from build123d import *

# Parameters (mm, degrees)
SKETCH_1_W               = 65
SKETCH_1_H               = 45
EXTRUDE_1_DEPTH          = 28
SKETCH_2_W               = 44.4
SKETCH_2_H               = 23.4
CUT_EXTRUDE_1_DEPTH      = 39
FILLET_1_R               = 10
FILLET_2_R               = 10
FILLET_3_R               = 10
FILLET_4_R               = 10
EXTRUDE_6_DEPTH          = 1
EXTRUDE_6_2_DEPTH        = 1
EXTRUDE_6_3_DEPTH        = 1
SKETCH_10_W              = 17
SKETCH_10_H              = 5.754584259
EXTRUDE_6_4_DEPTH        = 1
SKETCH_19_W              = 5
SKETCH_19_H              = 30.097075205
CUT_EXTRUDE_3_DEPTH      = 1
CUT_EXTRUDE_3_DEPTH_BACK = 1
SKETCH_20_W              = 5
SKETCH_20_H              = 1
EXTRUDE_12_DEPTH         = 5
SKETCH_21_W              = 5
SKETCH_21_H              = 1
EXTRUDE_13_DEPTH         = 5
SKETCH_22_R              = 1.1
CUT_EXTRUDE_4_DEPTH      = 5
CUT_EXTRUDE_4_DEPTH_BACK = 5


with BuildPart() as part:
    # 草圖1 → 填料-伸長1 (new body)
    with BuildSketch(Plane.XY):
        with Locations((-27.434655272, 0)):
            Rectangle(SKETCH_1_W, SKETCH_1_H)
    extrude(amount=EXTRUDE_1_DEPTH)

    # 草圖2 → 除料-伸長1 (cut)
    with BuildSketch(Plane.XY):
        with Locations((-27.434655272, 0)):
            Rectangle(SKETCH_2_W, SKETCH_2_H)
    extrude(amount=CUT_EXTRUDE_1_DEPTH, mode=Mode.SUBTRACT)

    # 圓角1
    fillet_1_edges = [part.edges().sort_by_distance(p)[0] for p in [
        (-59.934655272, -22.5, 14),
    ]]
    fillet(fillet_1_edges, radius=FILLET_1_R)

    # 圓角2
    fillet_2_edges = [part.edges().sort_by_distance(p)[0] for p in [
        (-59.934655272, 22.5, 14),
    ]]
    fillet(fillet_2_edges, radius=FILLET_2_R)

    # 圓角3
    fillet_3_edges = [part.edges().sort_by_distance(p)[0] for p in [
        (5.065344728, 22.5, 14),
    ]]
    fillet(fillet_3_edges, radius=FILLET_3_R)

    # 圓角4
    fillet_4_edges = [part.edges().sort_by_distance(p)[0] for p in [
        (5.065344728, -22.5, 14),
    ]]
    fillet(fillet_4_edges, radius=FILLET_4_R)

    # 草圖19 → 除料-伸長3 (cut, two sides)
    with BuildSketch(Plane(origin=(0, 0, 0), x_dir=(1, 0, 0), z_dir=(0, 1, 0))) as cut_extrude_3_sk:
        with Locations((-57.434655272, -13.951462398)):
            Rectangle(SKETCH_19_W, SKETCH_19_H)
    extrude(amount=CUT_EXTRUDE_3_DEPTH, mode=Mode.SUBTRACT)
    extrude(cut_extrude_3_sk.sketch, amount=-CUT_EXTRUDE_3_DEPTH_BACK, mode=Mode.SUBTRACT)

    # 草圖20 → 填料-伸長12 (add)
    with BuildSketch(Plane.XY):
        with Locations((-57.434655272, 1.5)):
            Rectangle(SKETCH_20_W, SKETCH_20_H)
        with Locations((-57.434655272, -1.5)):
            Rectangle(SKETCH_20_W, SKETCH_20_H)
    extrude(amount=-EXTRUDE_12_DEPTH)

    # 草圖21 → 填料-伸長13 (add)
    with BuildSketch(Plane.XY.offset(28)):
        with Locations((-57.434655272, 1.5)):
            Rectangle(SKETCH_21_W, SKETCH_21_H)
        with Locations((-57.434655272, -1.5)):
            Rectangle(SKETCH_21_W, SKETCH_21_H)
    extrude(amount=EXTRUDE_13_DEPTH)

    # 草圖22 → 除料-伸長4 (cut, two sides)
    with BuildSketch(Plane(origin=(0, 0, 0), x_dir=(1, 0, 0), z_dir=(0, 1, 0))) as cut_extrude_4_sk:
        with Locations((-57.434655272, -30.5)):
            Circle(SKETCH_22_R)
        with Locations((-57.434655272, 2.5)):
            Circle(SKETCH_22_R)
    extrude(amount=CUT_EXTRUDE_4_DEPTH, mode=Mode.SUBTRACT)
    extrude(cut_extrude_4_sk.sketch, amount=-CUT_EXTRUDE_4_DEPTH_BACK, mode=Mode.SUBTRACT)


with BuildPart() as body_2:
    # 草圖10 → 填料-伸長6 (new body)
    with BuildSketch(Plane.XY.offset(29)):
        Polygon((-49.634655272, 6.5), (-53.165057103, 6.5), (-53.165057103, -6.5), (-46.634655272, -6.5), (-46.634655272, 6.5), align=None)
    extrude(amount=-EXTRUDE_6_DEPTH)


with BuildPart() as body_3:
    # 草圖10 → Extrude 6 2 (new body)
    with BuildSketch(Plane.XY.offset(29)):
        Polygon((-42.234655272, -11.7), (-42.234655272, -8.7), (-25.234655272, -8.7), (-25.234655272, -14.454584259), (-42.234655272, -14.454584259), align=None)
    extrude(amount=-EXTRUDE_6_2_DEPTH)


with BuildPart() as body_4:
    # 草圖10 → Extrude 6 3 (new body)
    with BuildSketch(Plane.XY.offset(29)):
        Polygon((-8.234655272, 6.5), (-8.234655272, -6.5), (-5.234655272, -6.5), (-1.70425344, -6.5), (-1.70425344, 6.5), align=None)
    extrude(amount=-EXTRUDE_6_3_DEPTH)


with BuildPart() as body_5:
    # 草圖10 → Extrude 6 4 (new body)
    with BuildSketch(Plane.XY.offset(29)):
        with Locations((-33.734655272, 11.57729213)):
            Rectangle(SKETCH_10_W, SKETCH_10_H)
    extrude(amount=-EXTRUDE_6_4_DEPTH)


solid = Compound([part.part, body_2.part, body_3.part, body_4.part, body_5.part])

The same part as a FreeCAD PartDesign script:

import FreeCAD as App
import Part
import Sketcher


def edges_at(feature, points):
    """Names of the edges that pass closest to the given points."""
    edges = feature.Shape.Edges
    near = lambda p: min(range(len(edges)), key=lambda i: edges[i].distToShape(Part.Vertex(*p))[0])
    return sorted({f"Edge{near(p) + 1}" for p in points})

doc = App.newDocument("Part")
body = doc.addObject("PartDesign::Body", "Body")

sketch1 = doc.addObject("Sketcher::SketchObject", "Sketch")
body.addObject(sketch1)
sketch1.AttachmentSupport = (doc.XY_Plane, [""])
sketch1.MapMode = "FlatFace"
sketch1.addGeometry(Part.LineSegment(App.Vector(-59.934655, 22.5, 0), App.Vector(-59.934655, -22.5, 0)), False)
sketch1.addGeometry(Part.LineSegment(App.Vector(-59.934655, -22.5, 0), App.Vector(5.065345, -22.5, 0)), False)
sketch1.addGeometry(Part.LineSegment(App.Vector(5.065345, -22.5, 0), App.Vector(5.065345, 22.5, 0)), False)
sketch1.addGeometry(Part.LineSegment(App.Vector(5.065345, 22.5, 0), App.Vector(-59.934655, 22.5, 0)), False)
sketch1.addConstraint(Sketcher.Constraint("Coincident", 0, 2, 1, 1))
sketch1.addConstraint(Sketcher.Constraint("Coincident", 1, 2, 2, 1))
sketch1.addConstraint(Sketcher.Constraint("Coincident", 2, 2, 3, 1))
sketch1.addConstraint(Sketcher.Constraint("Coincident", 3, 2, 0, 1))
sketch1.addConstraint(Sketcher.Constraint("Vertical", 0))
sketch1.addConstraint(Sketcher.Constraint("Horizontal", 1))
sketch1.addConstraint(Sketcher.Constraint("Vertical", 2))
sketch1.addConstraint(Sketcher.Constraint("Horizontal", 3))
sketch1.addConstraint(Sketcher.Constraint("DistanceX", 1, 1, 1, 2, 65.0))
sketch1.addConstraint(Sketcher.Constraint("DistanceY", 0, 2, 0, 1, 45.0))
sketch1.addConstraint(Sketcher.Constraint("DistanceY", 0, 2, -1, 1, 22.5))
sketch1.addConstraint(Sketcher.Constraint("DistanceX", 0, 2, -1, 1, 59.934655))
pad1 = doc.addObject("PartDesign::Pad", "Pad")
body.addObject(pad1)
pad1.Profile = sketch1
pad1.Length = 28

sketch2 = doc.addObject("Sketcher::SketchObject", "Sketch001")
body.addObject(sketch2)
sketch2.AttachmentSupport = (doc.XY_Plane, [""])
sketch2.MapMode = "FlatFace"
sketch2.addGeometry(Part.LineSegment(App.Vector(-49.634655, 11.7, 0), App.Vector(-49.634655, -11.7, 0)), False)
sketch2.addGeometry(Part.LineSegment(App.Vector(-49.634655, -11.7, 0), App.Vector(-5.234655, -11.7, 0)), False)
sketch2.addGeometry(Part.LineSegment(App.Vector(-5.234655, -11.7, 0), App.Vector(-5.234655, 11.7, 0)), False)
sketch2.addGeometry(Part.LineSegment(App.Vector(-5.234655, 11.7, 0), App.Vector(-49.634655, 11.7, 0)), False)
sketch2.addConstraint(Sketcher.Constraint("Coincident", 0, 2, 1, 1))
sketch2.addConstraint(Sketcher.Constraint("Coincident", 1, 2, 2, 1))
sketch2.addConstraint(Sketcher.Constraint("Coincident", 2, 2, 3, 1))
sketch2.addConstraint(Sketcher.Constraint("Coincident", 3, 2, 0, 1))
sketch2.addConstraint(Sketcher.Constraint("Vertical", 0))
sketch2.addConstraint(Sketcher.Constraint("Horizontal", 1))
sketch2.addConstraint(Sketcher.Constraint("Vertical", 2))
sketch2.addConstraint(Sketcher.Constraint("Horizontal", 3))
sketch2.addConstraint(Sketcher.Constraint("DistanceX", 1, 1, 1, 2, 44.4))
sketch2.addConstraint(Sketcher.Constraint("DistanceY", 0, 2, 0, 1, 23.4))
sketch2.addConstraint(Sketcher.Constraint("DistanceY", 0, 2, -1, 1, 11.7))
sketch2.addConstraint(Sketcher.Constraint("DistanceX", 0, 2, -1, 1, 49.634655))
pocket1 = doc.addObject("PartDesign::Pocket", "Pocket")
body.addObject(pocket1)
pocket1.Profile = sketch2
pocket1.Length = 39
pocket1.Reversed = True
doc.recompute()

fillet = doc.addObject("PartDesign::Fillet", "Fillet")
body.addObject(fillet)
fillet.Base = (pocket1, edges_at(pocket1, [(-59.935, -22.5, 14)]))
fillet.Radius = 10
doc.recompute()

fillet2 = doc.addObject("PartDesign::Fillet", "Fillet001")
body.addObject(fillet2)
fillet2.Base = (fillet, edges_at(fillet, [(-59.935, 22.5, 14)]))
fillet2.Radius = 10
doc.recompute()

fillet3 = doc.addObject("PartDesign::Fillet", "Fillet002")
body.addObject(fillet3)
fillet3.Base = (fillet2, edges_at(fillet2, [(5.065, 22.5, 14)]))
fillet3.Radius = 10
doc.recompute()

fillet4 = doc.addObject("PartDesign::Fillet", "Fillet003")
body.addObject(fillet4)
fillet4.Base = (fillet3, edges_at(fillet3, [(5.065, -22.5, 14)]))
fillet4.Radius = 10

sketch3 = doc.addObject("Sketcher::SketchObject", "Sketch002")
body.addObject(sketch3)
sketch3.AttachmentSupport = (doc.XZ_Plane, [""])
sketch3.MapMode = "FlatFace"
sketch3.addGeometry(Part.LineSegment(App.Vector(-59.934655, -1.097075, 0), App.Vector(-59.934655, 29, 0)), False)
sketch3.addGeometry(Part.LineSegment(App.Vector(-59.934655, 29, 0), App.Vector(-54.934655, 29, 0)), False)
sketch3.addGeometry(Part.LineSegment(App.Vector(-54.934655, 29, 0), App.Vector(-54.934655, -1.097075, 0)), False)
sketch3.addGeometry(Part.LineSegment(App.Vector(-54.934655, -1.097075, 0), App.Vector(-59.934655, -1.097075, 0)), False)
sketch3.addConstraint(Sketcher.Constraint("Coincident", 0, 2, 1, 1))
sketch3.addConstraint(Sketcher.Constraint("Coincident", 1, 2, 2, 1))
sketch3.addConstraint(Sketcher.Constraint("Coincident", 2, 2, 3, 1))
sketch3.addConstraint(Sketcher.Constraint("Coincident", 3, 2, 0, 1))
sketch3.addConstraint(Sketcher.Constraint("Vertical", 0))
sketch3.addConstraint(Sketcher.Constraint("Horizontal", 1))
sketch3.addConstraint(Sketcher.Constraint("Vertical", 2))
sketch3.addConstraint(Sketcher.Constraint("Horizontal", 3))
sketch3.addConstraint(Sketcher.Constraint("DistanceX", 1, 1, 1, 2, 5.0))
sketch3.addConstraint(Sketcher.Constraint("DistanceY", -1, 1, 0, 2, 29.0))
sketch3.addConstraint(Sketcher.Constraint("DistanceY", 0, 1, 0, 2, 30.097075))
sketch3.addConstraint(Sketcher.Constraint("DistanceX", 0, 2, -1, 1, 59.934655))
pocket2 = doc.addObject("PartDesign::Pocket", "Pocket001")
body.addObject(pocket2)
pocket2.Profile = sketch3
pocket2.Type = "TwoLengths"
pocket2.Length = 1
pocket2.Length2 = 1

sketch4 = doc.addObject("Sketcher::SketchObject", "Sketch003")
body.addObject(sketch4)
sketch4.AttachmentSupport = (doc.XY_Plane, [""])
sketch4.MapMode = "FlatFace"
sketch4.addGeometry(Part.LineSegment(App.Vector(-59.934655, 2, 0), App.Vector(-59.934655, 1, 0)), False)
sketch4.addGeometry(Part.LineSegment(App.Vector(-59.934655, 1, 0), App.Vector(-54.934655, 1, 0)), False)
sketch4.addGeometry(Part.LineSegment(App.Vector(-54.934655, 1, 0), App.Vector(-54.934655, 2, 0)), False)
sketch4.addGeometry(Part.LineSegment(App.Vector(-54.934655, 2, 0), App.Vector(-59.934655, 2, 0)), False)
sketch4.addGeometry(Part.LineSegment(App.Vector(-59.934655, -1, 0), App.Vector(-59.934655, -2, 0)), False)
sketch4.addGeometry(Part.LineSegment(App.Vector(-59.934655, -2, 0), App.Vector(-54.934655, -2, 0)), False)
sketch4.addGeometry(Part.LineSegment(App.Vector(-54.934655, -2, 0), App.Vector(-54.934655, -1, 0)), False)
sketch4.addGeometry(Part.LineSegment(App.Vector(-54.934655, -1, 0), App.Vector(-59.934655, -1, 0)), False)
sketch4.addConstraint(Sketcher.Constraint("Coincident", 0, 2, 1, 1))
sketch4.addConstraint(Sketcher.Constraint("Coincident", 1, 2, 2, 1))
sketch4.addConstraint(Sketcher.Constraint("Coincident", 2, 2, 3, 1))
sketch4.addConstraint(Sketcher.Constraint("Coincident", 3, 2, 0, 1))
sketch4.addConstraint(Sketcher.Constraint("Coincident", 4, 2, 5, 1))
sketch4.addConstraint(Sketcher.Constraint("Coincident", 5, 2, 6, 1))
sketch4.addConstraint(Sketcher.Constraint("Coincident", 6, 2, 7, 1))
sketch4.addConstraint(Sketcher.Constraint("Coincident", 7, 2, 4, 1))
sketch4.addConstraint(Sketcher.Constraint("Vertical", 0))
sketch4.addConstraint(Sketcher.Constraint("Horizontal", 1))
sketch4.addConstraint(Sketcher.Constraint("Vertical", 2))
sketch4.addConstraint(Sketcher.Constraint("Horizontal", 3))
sketch4.addConstraint(Sketcher.Constraint("Vertical", 4))
sketch4.addConstraint(Sketcher.Constraint("Horizontal", 5))
sketch4.addConstraint(Sketcher.Constraint("Vertical", 6))
sketch4.addConstraint(Sketcher.Constraint("Horizontal", 7))
sketch4.addConstraint(Sketcher.Constraint("Symmetric", 3, 2, 4, 2, -1))
sketch4.addConstraint(Sketcher.Constraint("Symmetric", 1, 2, 6, 2, -1))
sketch4.addConstraint(Sketcher.Constraint("DistanceX", 1, 1, 1, 2, 5.0))
sketch4.addConstraint(Sketcher.Constraint("DistanceY", 0, 2, 0, 1, 1.0))
sketch4.addConstraint(Sketcher.Constraint("DistanceY", -1, 1, 0, 2, 1.0))
sketch4.addConstraint(Sketcher.Constraint("DistanceX", 0, 2, -1, 1, 59.934655))
pad2 = doc.addObject("PartDesign::Pad", "Pad001")
body.addObject(pad2)
pad2.Profile = sketch4
pad2.Length = 5
pad2.Reversed = True

sketch5 = doc.addObject("Sketcher::SketchObject", "Sketch004")
body.addObject(sketch5)
sketch5.AttachmentSupport = (doc.XY_Plane, [""])
sketch5.MapMode = "FlatFace"
sketch5.AttachmentOffset = App.Placement(App.Vector(0, 0, 28), App.Rotation())
sketch5.addGeometry(Part.LineSegment(App.Vector(-59.934655, 2, 0), App.Vector(-59.934655, 1, 0)), False)
sketch5.addGeometry(Part.LineSegment(App.Vector(-59.934655, 1, 0), App.Vector(-54.934655, 1, 0)), False)
sketch5.addGeometry(Part.LineSegment(App.Vector(-54.934655, 1, 0), App.Vector(-54.934655, 2, 0)), False)
sketch5.addGeometry(Part.LineSegment(App.Vector(-54.934655, 2, 0), App.Vector(-59.934655, 2, 0)), False)
sketch5.addGeometry(Part.LineSegment(App.Vector(-59.934655, -1, 0), App.Vector(-59.934655, -2, 0)), False)
sketch5.addGeometry(Part.LineSegment(App.Vector(-59.934655, -2, 0), App.Vector(-54.934655, -2, 0)), False)
sketch5.addGeometry(Part.LineSegment(App.Vector(-54.934655, -2, 0), App.Vector(-54.934655, -1, 0)), False)
sketch5.addGeometry(Part.LineSegment(App.Vector(-54.934655, -1, 0), App.Vector(-59.934655, -1, 0)), False)
sketch5.addConstraint(Sketcher.Constraint("Coincident", 0, 2, 1, 1))
sketch5.addConstraint(Sketcher.Constraint("Coincident", 1, 2, 2, 1))
sketch5.addConstraint(Sketcher.Constraint("Coincident", 2, 2, 3, 1))
sketch5.addConstraint(Sketcher.Constraint("Coincident", 3, 2, 0, 1))
sketch5.addConstraint(Sketcher.Constraint("Coincident", 4, 2, 5, 1))
sketch5.addConstraint(Sketcher.Constraint("Coincident", 5, 2, 6, 1))
sketch5.addConstraint(Sketcher.Constraint("Coincident", 6, 2, 7, 1))
sketch5.addConstraint(Sketcher.Constraint("Coincident", 7, 2, 4, 1))
sketch5.addConstraint(Sketcher.Constraint("Vertical", 0))
sketch5.addConstraint(Sketcher.Constraint("Horizontal", 1))
sketch5.addConstraint(Sketcher.Constraint("Vertical", 2))
sketch5.addConstraint(Sketcher.Constraint("Horizontal", 3))
sketch5.addConstraint(Sketcher.Constraint("Vertical", 4))
sketch5.addConstraint(Sketcher.Constraint("Horizontal", 5))
sketch5.addConstraint(Sketcher.Constraint("Vertical", 6))
sketch5.addConstraint(Sketcher.Constraint("Horizontal", 7))
sketch5.addConstraint(Sketcher.Constraint("Symmetric", 3, 2, 4, 2, -1))
sketch5.addConstraint(Sketcher.Constraint("Symmetric", 1, 2, 6, 2, -1))
sketch5.addConstraint(Sketcher.Constraint("DistanceX", 1, 1, 1, 2, 5.0))
sketch5.addConstraint(Sketcher.Constraint("DistanceY", 0, 2, 0, 1, 1.0))
sketch5.addConstraint(Sketcher.Constraint("DistanceY", -1, 1, 0, 2, 1.0))
sketch5.addConstraint(Sketcher.Constraint("DistanceX", 0, 2, -1, 1, 59.934655))
pad3 = doc.addObject("PartDesign::Pad", "Pad002")
body.addObject(pad3)
pad3.Profile = sketch5
pad3.Length = 5

sketch6 = doc.addObject("Sketcher::SketchObject", "Sketch005")
body.addObject(sketch6)
sketch6.AttachmentSupport = (doc.XZ_Plane, [""])
sketch6.MapMode = "FlatFace"
sketch6.addGeometry(Part.Circle(App.Vector(-57.434655, 30.5, 0), App.Vector(0, 0, 1), 1.1), False)
sketch6.addGeometry(Part.Circle(App.Vector(-57.434655, -2.5, 0), App.Vector(0, 0, 1), 1.1), False)
sketch6.addConstraint(Sketcher.Constraint("Equal", 0, 1))
sketch6.addConstraint(Sketcher.Constraint("Vertical", 0, 3, 1, 3))
sketch6.addConstraint(Sketcher.Constraint("Diameter", 0, 2.2))
sketch6.addConstraint(Sketcher.Constraint("DistanceY", 1, 3, 0, 3, 33.0))
sketch6.addConstraint(Sketcher.Constraint("DistanceY", -1, 1, 0, 3, 30.5))
sketch6.addConstraint(Sketcher.Constraint("DistanceX", 0, 3, -1, 1, 57.434655))
pocket3 = doc.addObject("PartDesign::Pocket", "Pocket002")
body.addObject(pocket3)
pocket3.Profile = sketch6
pocket3.Type = "ThroughAll"
pocket3.Midplane = True
body2 = doc.addObject("PartDesign::Body", "Body001")

sketch7 = doc.addObject("Sketcher::SketchObject", "Sketch006")
body2.addObject(sketch7)
sketch7.AttachmentSupport = (doc.getObject("XY_Plane001"), [""])
sketch7.MapMode = "FlatFace"
sketch7.AttachmentOffset = App.Placement(App.Vector(0, 0, 29), App.Rotation())
sketch7.addGeometry(Part.LineSegment(App.Vector(-53.165057, 6.5, 0), App.Vector(-53.165057, -6.5, 0)), False)
sketch7.addGeometry(Part.LineSegment(App.Vector(-53.165057, -6.5, 0), App.Vector(-46.634655, -6.5, 0)), False)
sketch7.addGeometry(Part.LineSegment(App.Vector(-46.634655, -6.5, 0), App.Vector(-46.634655, 6.5, 0)), False)
sketch7.addGeometry(Part.LineSegment(App.Vector(-46.634655, 6.5, 0), App.Vector(-53.165057, 6.5, 0)), False)
sketch7.addConstraint(Sketcher.Constraint("Coincident", 0, 2, 1, 1))
sketch7.addConstraint(Sketcher.Constraint("Coincident", 1, 2, 2, 1))
sketch7.addConstraint(Sketcher.Constraint("Coincident", 2, 2, 3, 1))
sketch7.addConstraint(Sketcher.Constraint("Coincident", 3, 2, 0, 1))
sketch7.addConstraint(Sketcher.Constraint("Vertical", 0))
sketch7.addConstraint(Sketcher.Constraint("Horizontal", 1))
sketch7.addConstraint(Sketcher.Constraint("Vertical", 2))
sketch7.addConstraint(Sketcher.Constraint("Horizontal", 3))
sketch7.addConstraint(Sketcher.Constraint("DistanceY", 0, 2, 0, 1, 13.0))
sketch7.addConstraint(Sketcher.Constraint("DistanceY", 0, 2, -1, 1, 6.5))
sketch7.addConstraint(Sketcher.Constraint("DistanceX", 1, 1, 1, 2, 6.530402))
sketch7.addConstraint(Sketcher.Constraint("DistanceX", 0, 2, -1, 1, 53.165057))
pad4 = doc.addObject("PartDesign::Pad", "Pad003")
body2.addObject(pad4)
pad4.Profile = sketch7
pad4.Length = 1
pad4.Reversed = True
body3 = doc.addObject("PartDesign::Body", "Body002")

sketch8 = doc.addObject("Sketcher::SketchObject", "Sketch007")
body3.addObject(sketch8)
sketch8.AttachmentSupport = (doc.getObject("XY_Plane002"), [""])
sketch8.MapMode = "FlatFace"
sketch8.AttachmentOffset = App.Placement(App.Vector(0, 0, 29), App.Rotation())
sketch8.addGeometry(Part.LineSegment(App.Vector(-42.234655, -8.7, 0), App.Vector(-42.234655, -14.454584, 0)), False)
sketch8.addGeometry(Part.LineSegment(App.Vector(-42.234655, -14.454584, 0), App.Vector(-25.234655, -14.454584, 0)), False)
sketch8.addGeometry(Part.LineSegment(App.Vector(-25.234655, -14.454584, 0), App.Vector(-25.234655, -8.7, 0)), False)
sketch8.addGeometry(Part.LineSegment(App.Vector(-25.234655, -8.7, 0), App.Vector(-42.234655, -8.7, 0)), False)
sketch8.addConstraint(Sketcher.Constraint("Coincident", 0, 2, 1, 1))
sketch8.addConstraint(Sketcher.Constraint("Coincident", 1, 2, 2, 1))
sketch8.addConstraint(Sketcher.Constraint("Coincident", 2, 2, 3, 1))
sketch8.addConstraint(Sketcher.Constraint("Coincident", 3, 2, 0, 1))
sketch8.addConstraint(Sketcher.Constraint("Vertical", 0))
sketch8.addConstraint(Sketcher.Constraint("Horizontal", 1))
sketch8.addConstraint(Sketcher.Constraint("Vertical", 2))
sketch8.addConstraint(Sketcher.Constraint("Horizontal", 3))
sketch8.addConstraint(Sketcher.Constraint("DistanceX", 1, 1, 1, 2, 17.0))
sketch8.addConstraint(Sketcher.Constraint("DistanceY", 2, 2, -1, 1, 8.7))
sketch8.addConstraint(Sketcher.Constraint("DistanceY", 0, 2, 0, 1, 5.754584))
sketch8.addConstraint(Sketcher.Constraint("DistanceX", 0, 2, -1, 1, 42.234655))
pad5 = doc.addObject("PartDesign::Pad", "Pad004")
body3.addObject(pad5)
pad5.Profile = sketch8
pad5.Length = 1
pad5.Reversed = True
body4 = doc.addObject("PartDesign::Body", "Body003")

sketch9 = doc.addObject("Sketcher::SketchObject", "Sketch008")
body4.addObject(sketch9)
sketch9.AttachmentSupport = (doc.getObject("XY_Plane003"), [""])
sketch9.MapMode = "FlatFace"
sketch9.AttachmentOffset = App.Placement(App.Vector(0, 0, 29), App.Rotation())
sketch9.addGeometry(Part.LineSegment(App.Vector(-8.234655, 6.5, 0), App.Vector(-8.234655, -6.5, 0)), False)
sketch9.addGeometry(Part.LineSegment(App.Vector(-8.234655, -6.5, 0), App.Vector(-1.704253, -6.5, 0)), False)
sketch9.addGeometry(Part.LineSegment(App.Vector(-1.704253, -6.5, 0), App.Vector(-1.704253, 6.5, 0)), False)
sketch9.addGeometry(Part.LineSegment(App.Vector(-1.704253, 6.5, 0), App.Vector(-8.234655, 6.5, 0)), False)
sketch9.addConstraint(Sketcher.Constraint("Coincident", 0, 2, 1, 1))
sketch9.addConstraint(Sketcher.Constraint("Coincident", 1, 2, 2, 1))
sketch9.addConstraint(Sketcher.Constraint("Coincident", 2, 2, 3, 1))
sketch9.addConstraint(Sketcher.Constraint("Coincident", 3, 2, 0, 1))
sketch9.addConstraint(Sketcher.Constraint("Vertical", 0))
sketch9.addConstraint(Sketcher.Constraint("Horizontal", 1))
sketch9.addConstraint(Sketcher.Constraint("Vertical", 2))
sketch9.addConstraint(Sketcher.Constraint("Horizontal", 3))
sketch9.addConstraint(Sketcher.Constraint("DistanceY", 0, 2, 0, 1, 13.0))
sketch9.addConstraint(Sketcher.Constraint("DistanceY", 0, 2, -1, 1, 6.5))
sketch9.addConstraint(Sketcher.Constraint("DistanceX", 1, 1, 1, 2, 6.530402))
sketch9.addConstraint(Sketcher.Constraint("DistanceX", 0, 2, -1, 1, 8.234655))
pad6 = doc.addObject("PartDesign::Pad", "Pad005")
body4.addObject(pad6)
pad6.Profile = sketch9
pad6.Length = 1
pad6.Reversed = True
body5 = doc.addObject("PartDesign::Body", "Body004")

sketch10 = doc.addObject("Sketcher::SketchObject", "Sketch009")
body5.addObject(sketch10)
sketch10.AttachmentSupport = (doc.getObject("XY_Plane004"), [""])
sketch10.MapMode = "FlatFace"
sketch10.AttachmentOffset = App.Placement(App.Vector(0, 0, 29), App.Rotation())
sketch10.addGeometry(Part.LineSegment(App.Vector(-42.234655, 14.454584, 0), App.Vector(-42.234655, 8.7, 0)), False)
sketch10.addGeometry(Part.LineSegment(App.Vector(-42.234655, 8.7, 0), App.Vector(-25.234655, 8.7, 0)), False)
sketch10.addGeometry(Part.LineSegment(App.Vector(-25.234655, 8.7, 0), App.Vector(-25.234655, 14.454584, 0)), False)
sketch10.addGeometry(Part.LineSegment(App.Vector(-25.234655, 14.454584, 0), App.Vector(-42.234655, 14.454584, 0)), False)
sketch10.addConstraint(Sketcher.Constraint("Coincident", 0, 2, 1, 1))
sketch10.addConstraint(Sketcher.Constraint("Coincident", 1, 2, 2, 1))
sketch10.addConstraint(Sketcher.Constraint("Coincident", 2, 2, 3, 1))
sketch10.addConstraint(Sketcher.Constraint("Coincident", 3, 2, 0, 1))
sketch10.addConstraint(Sketcher.Constraint("Vertical", 0))
sketch10.addConstraint(Sketcher.Constraint("Horizontal", 1))
sketch10.addConstraint(Sketcher.Constraint("Vertical", 2))
sketch10.addConstraint(Sketcher.Constraint("Horizontal", 3))
sketch10.addConstraint(Sketcher.Constraint("DistanceX", 1, 1, 1, 2, 17.0))
sketch10.addConstraint(Sketcher.Constraint("DistanceY", -1, 1, 0, 2, 8.7))
sketch10.addConstraint(Sketcher.Constraint("DistanceY", 0, 2, 0, 1, 5.754584))
sketch10.addConstraint(Sketcher.Constraint("DistanceX", 0, 2, -1, 1, 42.234655))
pad7 = doc.addObject("PartDesign::Pad", "Pad006")
body5.addObject(pad7)
pad7.Profile = sketch10
pad7.Length = 1
pad7.Reversed = True

doc.recompute()
